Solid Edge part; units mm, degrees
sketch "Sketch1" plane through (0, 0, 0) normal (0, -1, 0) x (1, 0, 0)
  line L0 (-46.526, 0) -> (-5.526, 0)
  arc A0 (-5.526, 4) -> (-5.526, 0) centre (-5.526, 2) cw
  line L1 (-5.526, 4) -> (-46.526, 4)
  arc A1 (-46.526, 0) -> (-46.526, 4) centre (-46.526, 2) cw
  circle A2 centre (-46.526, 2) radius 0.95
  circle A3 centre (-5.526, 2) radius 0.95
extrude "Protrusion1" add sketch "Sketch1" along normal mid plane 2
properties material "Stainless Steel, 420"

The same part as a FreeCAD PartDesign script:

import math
import FreeCAD as App
import Part
import Sketcher
Q = App.Units.Quantity

doc = App.newDocument("Part")
body = doc.addObject("PartDesign::Body", "Body")

# Sketch on XZ plane
sketch1 = body.newObject("Sketcher::SketchObject", "Sketch")
sketch1.AttachmentSupport = (doc.getObject("XZ_Plane"), [""])
sketch1.MapMode = "FlatFace"
sketch1.addGeometry(Part.ArcOfCircle(Part.Circle(App.Vector(-46.5, 2, 0), App.Vector(0, 0, 1), 2), math.radians(90), math.radians(270)), False)
sketch1.addGeometry(Part.LineSegment(App.Vector(-46.5, 0, 0), App.Vector(-5.5, 0, 0)), False)
sketch1.addGeometry(Part.ArcOfCircle(Part.Circle(App.Vector(-5.5, 2, 0), App.Vector(0, 0, 1), 2), math.radians(-90), math.radians(90)), False)
sketch1.addGeometry(Part.LineSegment(App.Vector(-5.5, 4, 0), App.Vector(-46.5, 4, 0)), False)
sketch1.addGeometry(Part.Circle(App.Vector(-46.5, 2, 0), App.Vector(0, 0, 1), 0.9), False)
sketch1.addGeometry(Part.Circle(App.Vector(-5.5, 2, 0), App.Vector(0, 0, 1), 0.9), False)
sketch1.addConstraint(Sketcher.Constraint("Tangent", 0, 2, 1, 1))
sketch1.addConstraint(Sketcher.Constraint("Tangent", 1, 2, 2, 1))
sketch1.addConstraint(Sketcher.Constraint("Tangent", 2, 2, 3, 1))
sketch1.addConstraint(Sketcher.Constraint("Tangent", 3, 2, 0, 1))
sketch1.addConstraint(Sketcher.Constraint("Horizontal", 1))
sketch1.addConstraint(Sketcher.Constraint("Horizontal", 3))
sketch1.addConstraint(Sketcher.Constraint("Coincident", 4, 3, 0, 3))
sketch1.addConstraint(Sketcher.Constraint("Coincident", 5, 3, 2, 3))
sketch1.addConstraint(Sketcher.Constraint("Equal", 4, 5))
sketch1.addConstraint(Sketcher.Constraint("PointOnObject", 0, 2, -1))
sketch1.addConstraint(Sketcher.Constraint("Radius", 0, Q("2 mm")))
sketch1.addConstraint(Sketcher.Constraint("Diameter", 4, Q("1.9 mm")))
sketch1.addConstraint(Sketcher.Constraint("DistanceX", 1, 1, 1, 2, Q("41 mm")))
sketch1.addConstraint(Sketcher.Constraint("DistanceX", 0, 3, -1, 1, Q("46.526 mm")))
pad1 = body.newObject("PartDesign::Pad", "Pad")
pad1.Profile = sketch1
pad1.Length = 2
pad1.Midplane = True

doc.recompute()
